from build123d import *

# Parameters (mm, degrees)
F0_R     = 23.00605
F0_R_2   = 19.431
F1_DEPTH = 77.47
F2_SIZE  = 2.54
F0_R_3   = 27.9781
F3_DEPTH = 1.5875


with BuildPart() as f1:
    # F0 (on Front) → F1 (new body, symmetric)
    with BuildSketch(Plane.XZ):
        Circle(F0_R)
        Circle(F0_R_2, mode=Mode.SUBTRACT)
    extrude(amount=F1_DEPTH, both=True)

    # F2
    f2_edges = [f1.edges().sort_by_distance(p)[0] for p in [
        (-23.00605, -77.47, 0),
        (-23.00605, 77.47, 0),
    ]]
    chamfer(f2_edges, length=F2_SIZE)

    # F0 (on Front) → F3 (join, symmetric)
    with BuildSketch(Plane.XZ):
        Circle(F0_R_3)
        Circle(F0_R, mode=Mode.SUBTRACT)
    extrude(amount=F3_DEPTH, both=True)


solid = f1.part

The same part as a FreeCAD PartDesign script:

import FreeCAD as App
import Part
import Sketcher
from FreeCAD import Vector
Q = App.Units.Quantity


def edges_at(feature, points):
    """Names of the edges that pass closest to the given points."""
    edges = feature.Shape.Edges
    near = lambda p: min(range(len(edges)), key=lambda i: edges[i].distToShape(Part.Vertex(*p))[0])
    return sorted({f"Edge{near(p) + 1}" for p in points})

doc = App.newDocument("Part")
body = doc.addObject("PartDesign::Body", "Body")

# Sketch on XZ plane
sketch1 = body.newObject("Sketcher::SketchObject", "Sketch")
sketch1.AttachmentSupport = (doc.getObject("XZ_Plane"), [""])
sketch1.MapMode = "FlatFace"
sketch1.addGeometry(Part.Circle(Vector(0, 0, 0), Vector(0, 0, 1), 23), False)
sketch1.addGeometry(Part.Circle(Vector(0, 0, 0), Vector(0, 0, 1), 19), False)
sketch1.addConstraint(Sketcher.Constraint("Coincident", 0, 3, -1, 1))
sketch1.addConstraint(Sketcher.Constraint("Coincident", 1, 3, -1, 1))
sketch1.addConstraint(Sketcher.Constraint("Diameter", 1, Q("1.53 in")))
sketch1.addConstraint(Sketcher.Constraint("Diameter", 0, Q("1.8115 in")))
pad1 = body.newObject("PartDesign::Pad", "Pad")
pad1.Profile = sketch1
pad1.Length = Q("6.1 in")
pad1.Midplane = True
doc.recompute()

chamfer = body.newObject("PartDesign::Chamfer", "Chamfer")
chamfer.Base = (pad1, edges_at(pad1, [(-23.006, -77.47, 0), (-23.006, 77.47, 0)]))
chamfer.Size = Q("0.1 in")

# Sketch on XZ plane
sketch2 = body.newObject("Sketcher::SketchObject", "Sketch001")
sketch2.AttachmentSupport = (doc.getObject("XZ_Plane"), [""])
sketch2.MapMode = "FlatFace"
sketch2.addGeometry(Part.Circle(Vector(0, 0, 0), Vector(0, 0, 1), 28), False)
sketch2.addGeometry(Part.Circle(Vector(0, 0, 0), Vector(0, 0, 1), 23), False)
sketch2.addConstraint(Sketcher.Constraint("Coincident", 0, 3, -1, 1))
sketch2.addConstraint(Sketcher.Constraint("Coincident", 1, 3, -1, 1))
sketch2.addConstraint(Sketcher.Constraint("Diameter", 0, Q("2.203 in")))
sketch2.addConstraint(Sketcher.Constraint("Diameter", 1, Q("1.8115 in")))
pad2 = body.newObject("PartDesign::Pad", "Pad001")
pad2.Profile = sketch2
pad2.Length = Q("0.125 in")
pad2.Midplane = True

doc.recompute()
